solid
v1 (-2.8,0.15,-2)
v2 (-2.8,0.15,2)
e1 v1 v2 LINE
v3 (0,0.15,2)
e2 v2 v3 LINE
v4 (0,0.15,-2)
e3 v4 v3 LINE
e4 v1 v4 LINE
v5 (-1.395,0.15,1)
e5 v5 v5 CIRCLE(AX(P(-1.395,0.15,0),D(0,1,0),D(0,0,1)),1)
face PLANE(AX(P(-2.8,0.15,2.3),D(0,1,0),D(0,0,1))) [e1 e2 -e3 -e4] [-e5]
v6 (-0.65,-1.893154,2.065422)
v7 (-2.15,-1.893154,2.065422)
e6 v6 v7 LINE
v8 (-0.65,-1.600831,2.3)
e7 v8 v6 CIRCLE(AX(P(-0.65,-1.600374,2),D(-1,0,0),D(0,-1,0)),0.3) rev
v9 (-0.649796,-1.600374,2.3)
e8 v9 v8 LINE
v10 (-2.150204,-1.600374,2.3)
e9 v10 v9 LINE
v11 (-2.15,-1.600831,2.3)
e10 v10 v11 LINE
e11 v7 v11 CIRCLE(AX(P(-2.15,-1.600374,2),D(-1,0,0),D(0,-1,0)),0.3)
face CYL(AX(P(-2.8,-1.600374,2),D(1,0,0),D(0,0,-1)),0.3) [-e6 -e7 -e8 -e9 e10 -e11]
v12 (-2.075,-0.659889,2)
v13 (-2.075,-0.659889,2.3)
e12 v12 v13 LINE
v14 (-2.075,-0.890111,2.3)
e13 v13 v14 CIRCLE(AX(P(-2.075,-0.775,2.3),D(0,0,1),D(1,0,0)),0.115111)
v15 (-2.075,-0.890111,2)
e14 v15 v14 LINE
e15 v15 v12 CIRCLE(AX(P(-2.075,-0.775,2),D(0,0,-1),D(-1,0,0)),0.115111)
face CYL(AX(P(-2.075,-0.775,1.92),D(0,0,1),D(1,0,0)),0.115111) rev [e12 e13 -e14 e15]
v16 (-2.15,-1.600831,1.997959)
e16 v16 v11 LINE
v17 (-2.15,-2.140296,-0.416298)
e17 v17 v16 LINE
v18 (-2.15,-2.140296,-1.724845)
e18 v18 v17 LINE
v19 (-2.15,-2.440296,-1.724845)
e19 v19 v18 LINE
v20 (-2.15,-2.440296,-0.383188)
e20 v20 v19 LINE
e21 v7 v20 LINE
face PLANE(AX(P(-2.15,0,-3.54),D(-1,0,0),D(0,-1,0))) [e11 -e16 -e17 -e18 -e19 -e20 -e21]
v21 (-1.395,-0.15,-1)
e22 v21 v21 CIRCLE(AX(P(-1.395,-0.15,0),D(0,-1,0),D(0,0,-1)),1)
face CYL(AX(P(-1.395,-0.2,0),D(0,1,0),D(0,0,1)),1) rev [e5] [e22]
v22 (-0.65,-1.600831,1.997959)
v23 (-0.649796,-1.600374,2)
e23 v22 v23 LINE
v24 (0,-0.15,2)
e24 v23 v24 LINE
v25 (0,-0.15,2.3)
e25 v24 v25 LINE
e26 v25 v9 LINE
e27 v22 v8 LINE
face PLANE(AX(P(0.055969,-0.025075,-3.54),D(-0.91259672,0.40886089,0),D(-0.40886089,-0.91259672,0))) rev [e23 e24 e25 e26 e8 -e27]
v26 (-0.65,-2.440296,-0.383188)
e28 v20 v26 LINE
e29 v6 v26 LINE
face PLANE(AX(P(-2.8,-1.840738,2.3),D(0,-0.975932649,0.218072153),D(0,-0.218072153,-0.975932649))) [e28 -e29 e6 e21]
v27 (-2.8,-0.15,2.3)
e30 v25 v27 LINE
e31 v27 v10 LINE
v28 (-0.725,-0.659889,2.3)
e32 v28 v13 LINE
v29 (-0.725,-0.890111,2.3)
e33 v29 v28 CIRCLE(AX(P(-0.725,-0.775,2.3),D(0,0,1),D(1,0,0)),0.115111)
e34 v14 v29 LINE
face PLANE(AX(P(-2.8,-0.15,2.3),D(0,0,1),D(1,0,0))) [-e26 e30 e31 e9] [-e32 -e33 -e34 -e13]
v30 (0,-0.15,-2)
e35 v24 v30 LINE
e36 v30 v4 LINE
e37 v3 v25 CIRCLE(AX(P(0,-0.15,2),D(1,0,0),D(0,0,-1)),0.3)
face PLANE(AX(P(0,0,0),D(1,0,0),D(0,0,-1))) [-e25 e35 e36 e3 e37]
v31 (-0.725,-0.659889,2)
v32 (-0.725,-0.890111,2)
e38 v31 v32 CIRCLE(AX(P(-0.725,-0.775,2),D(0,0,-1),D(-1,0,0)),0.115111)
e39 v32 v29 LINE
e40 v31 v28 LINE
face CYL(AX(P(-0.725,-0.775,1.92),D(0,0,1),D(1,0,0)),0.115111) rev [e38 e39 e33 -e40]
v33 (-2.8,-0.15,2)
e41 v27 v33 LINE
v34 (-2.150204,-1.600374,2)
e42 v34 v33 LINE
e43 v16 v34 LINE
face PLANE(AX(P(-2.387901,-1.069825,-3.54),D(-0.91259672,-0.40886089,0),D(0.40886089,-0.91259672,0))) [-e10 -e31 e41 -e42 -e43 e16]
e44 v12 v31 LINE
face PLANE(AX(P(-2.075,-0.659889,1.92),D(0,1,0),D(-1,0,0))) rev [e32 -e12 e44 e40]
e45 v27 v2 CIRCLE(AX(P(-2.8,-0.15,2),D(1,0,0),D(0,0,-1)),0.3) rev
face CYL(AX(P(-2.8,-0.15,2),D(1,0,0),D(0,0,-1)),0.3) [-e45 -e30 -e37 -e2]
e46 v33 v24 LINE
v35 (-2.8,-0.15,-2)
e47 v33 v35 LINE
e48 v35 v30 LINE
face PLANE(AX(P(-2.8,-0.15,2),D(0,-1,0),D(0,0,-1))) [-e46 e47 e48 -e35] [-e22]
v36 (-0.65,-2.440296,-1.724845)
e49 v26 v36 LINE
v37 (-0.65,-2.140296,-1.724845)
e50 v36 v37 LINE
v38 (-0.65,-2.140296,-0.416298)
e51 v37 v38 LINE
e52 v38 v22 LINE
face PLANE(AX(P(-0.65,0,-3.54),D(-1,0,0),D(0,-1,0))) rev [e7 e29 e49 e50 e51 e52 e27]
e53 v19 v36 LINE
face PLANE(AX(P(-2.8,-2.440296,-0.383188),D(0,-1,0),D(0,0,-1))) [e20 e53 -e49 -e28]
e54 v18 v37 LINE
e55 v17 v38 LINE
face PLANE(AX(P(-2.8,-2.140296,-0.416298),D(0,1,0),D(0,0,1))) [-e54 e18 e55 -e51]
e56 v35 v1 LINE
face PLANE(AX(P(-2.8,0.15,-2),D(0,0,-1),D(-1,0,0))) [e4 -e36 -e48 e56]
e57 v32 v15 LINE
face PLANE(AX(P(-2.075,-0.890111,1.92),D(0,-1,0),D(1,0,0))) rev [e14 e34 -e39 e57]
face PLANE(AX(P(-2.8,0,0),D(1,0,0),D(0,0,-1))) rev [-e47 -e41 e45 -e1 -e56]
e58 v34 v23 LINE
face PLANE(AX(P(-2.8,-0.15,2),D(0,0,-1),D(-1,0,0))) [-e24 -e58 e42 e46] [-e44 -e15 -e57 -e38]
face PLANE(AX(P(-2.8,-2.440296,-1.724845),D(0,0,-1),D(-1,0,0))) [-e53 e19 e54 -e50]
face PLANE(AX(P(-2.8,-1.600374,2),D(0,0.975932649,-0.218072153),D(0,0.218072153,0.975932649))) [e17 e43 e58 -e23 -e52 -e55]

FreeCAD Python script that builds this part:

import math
import FreeCAD as App
import Part
import Sketcher
Q = App.Units.Quantity


def edges_at(feature, points):
    """Names of the edges that pass closest to the given points."""
    edges = feature.Shape.Edges
    near = lambda p: min(range(len(edges)), key=lambda i: edges[i].distToShape(Part.Vertex(*p))[0])
    return sorted({f"Edge{near(p) + 1}" for p in points})

doc = App.newDocument("Part")
body = doc.addObject("PartDesign::Body", "Body")

# Sketch on YZ plane
sketch1 = doc.addObject("Sketcher::SketchObject", "Sketch")
body.addObject(sketch1)
sketch1.AttachmentSupport = (doc.YZ_Plane, [""])
sketch1.MapMode = "FlatFace"
sketch1.addGeometry([
    Part.LineSegment(App.Vector(-0.15, 2, 0), App.Vector(-0.15, -2, 0)),  # 0
    Part.LineSegment(App.Vector(-0.15, -2, 0), App.Vector(0.15, -2, 0)),  # 1
    Part.LineSegment(App.Vector(0.15, -2, 0), App.Vector(0.15, 2.3, 0)),  # 2
    Part.LineSegment(App.Vector(0.15, 2.3, 0), App.Vector(-1.84, 2.3, 0)),  # 3
    Part.LineSegment(App.Vector(-1.84, 2.3, 0), App.Vector(-2.44, -0.38, 0)),  # 4
    Part.LineSegment(App.Vector(-2.44, -0.38, 0), App.Vector(-2.44, -1.72, 0)),  # 5
    Part.LineSegment(App.Vector(-2.44, -1.72, 0), App.Vector(-2.14, -1.72, 0)),  # 6
    Part.LineSegment(App.Vector(-2.14, -1.72, 0), App.Vector(-2.14, -0.42, 0)),  # 7
    Part.LineSegment(App.Vector(-2.14, -0.42, 0), App.Vector(-1.6, 2, 0)),  # 8
    Part.LineSegment(App.Vector(-1.6, 2, 0), App.Vector(-0.15, 2, 0)),  # 9
], False)
sketch1.addConstraint([
    Sketcher.Constraint("Coincident", 0, 2, 1, 1),
    Sketcher.Constraint("Coincident", 1, 2, 2, 1),
    Sketcher.Constraint("Coincident", 2, 2, 3, 1),
    Sketcher.Constraint("Coincident", 3, 2, 4, 1),
    Sketcher.Constraint("Coincident", 4, 2, 5, 1),
    Sketcher.Constraint("Coincident", 5, 2, 6, 1),
    Sketcher.Constraint("Coincident", 6, 2, 7, 1),
    Sketcher.Constraint("Coincident", 7, 2, 8, 1),
    Sketcher.Constraint("Coincident", 8, 2, 9, 1),
    Sketcher.Constraint("Coincident", 9, 2, 0, 1),
    Sketcher.Constraint("Vertical", 0),
    Sketcher.Constraint("Horizontal", 1),
    Sketcher.Constraint("Vertical", 2),
    Sketcher.Constraint("Horizontal", 3),
    Sketcher.Constraint("Vertical", 5),
    Sketcher.Constraint("Horizontal", 6),
    Sketcher.Constraint("Vertical", 7),
    Sketcher.Constraint("Horizontal", 9),
    Sketcher.Constraint("Symmetric", 1, 2, 9, 2, -1, 1),
    Sketcher.Constraint("Parallel", 4, 8),
    Sketcher.Constraint("Equal", 1, 6),
    Sketcher.Constraint("DistanceY", 0, 2, 0, 1, Q("4 mm")),
    Sketcher.Constraint("DistanceX", 1, 1, 1, 2, Q("0.3 mm")),
    Sketcher.Constraint("DistanceY", 2, 1, 2, 2, Q("4.3 mm")),
    Sketcher.Constraint("Distance", 4, Q("2.749358 mm")),
    Sketcher.Constraint("DistanceX", 3, 2, 3, 1, Q("1.990738 mm")),
    Sketcher.Constraint("DistanceX", 9, 1, 9, 2, Q("1.450374 mm")),
    Sketcher.Constraint("DistanceY", 5, 2, 5, 1, Q("1.341657 mm")),
    Sketcher.Constraint("DistanceY", 7, 1, 7, 2, Q("1.308547 mm")),
])
pad1 = doc.addObject("PartDesign::Pad", "Pad")
body.addObject(pad1)
pad1.Profile = sketch1
pad1.Length = 2.8
pad1.Reversed = True

# Sketch on XZ plane
sketch2 = doc.addObject("Sketcher::SketchObject", "Sketch001")
body.addObject(sketch2)
sketch2.AttachmentSupport = (doc.XZ_Plane, [""])
sketch2.MapMode = "FlatFace"
sketch2.AttachmentOffset = App.Placement(App.Vector(0, 0, -0.15), App.Rotation())
sketch2.addGeometry(Part.Circle(App.Vector(-1.4, 0, 0), App.Vector(0, 0, 1), 1), False)
sketch2.addConstraint([
    Sketcher.Constraint("PointOnObject", 0, 3, -1),
    Sketcher.Constraint("Diameter", 0, Q("2 mm")),
    Sketcher.Constraint("DistanceX", 0, 3, -1, 1, Q("1.395 mm")),
])
pocket1 = doc.addObject("PartDesign::Pocket", "Pocket")
body.addObject(pocket1)
pocket1.Profile = sketch2
pocket1.Length = 0.35
pocket1.Reversed = True

# Sketch on XY plane
sketch3 = doc.addObject("Sketcher::SketchObject", "Sketch002")
body.addObject(sketch3)
sketch3.AttachmentSupport = (doc.XY_Plane, [""])
sketch3.MapMode = "FlatFace"
sketch3.AttachmentOffset = App.Placement(App.Vector(0, 0, 2.3), App.Rotation())
sketch3.addGeometry([
    Part.LineSegment(App.Vector(0.1, -0.15, 0), App.Vector(0, -0.15, 0)),  # 0
    Part.LineSegment(App.Vector(0, -0.15, 0), App.Vector(-0.65, -1.6, 0)),  # 1
    Part.LineSegment(App.Vector(-0.65, -1.6, 0), App.Vector(-0.65, -2.58, 0)),  # 2
    Part.LineSegment(App.Vector(-0.65, -2.58, 0), App.Vector(-2.15, -2.58, 0)),  # 3
    Part.LineSegment(App.Vector(-2.15, -2.58, 0), App.Vector(-2.15, -1.6, 0)),  # 4
    Part.LineSegment(App.Vector(-2.15, -1.6, 0), App.Vector(-2.8, -0.15, 0)),  # 5
    Part.LineSegment(App.Vector(-2.8, -0.15, 0), App.Vector(-2.94, -0.15, 0)),  # 6
    Part.LineSegment(App.Vector(-2.94, -0.15, 0), App.Vector(-2.94, -2.98, 0)),  # 7
    Part.LineSegment(App.Vector(-2.94, -2.98, 0), App.Vector(0.1, -2.98, 0)),  # 8
    Part.LineSegment(App.Vector(0.1, -2.98, 0), App.Vector(0.1, -0.15, 0)),  # 9
], False)
sketch3.addConstraint([
    Sketcher.Constraint("Coincident", 0, 2, 1, 1),
    Sketcher.Constraint("Coincident", 1, 2, 2, 1),
    Sketcher.Constraint("Coincident", 2, 2, 3, 1),
    Sketcher.Constraint("Coincident", 3, 2, 4, 1),
    Sketcher.Constraint("Coincident", 4, 2, 5, 1),
    Sketcher.Constraint("Coincident", 5, 2, 6, 1),
    Sketcher.Constraint("Coincident", 6, 2, 7, 1),
    Sketcher.Constraint("Coincident", 7, 2, 8, 1),
    Sketcher.Constraint("Coincident", 8, 2, 9, 1),
    Sketcher.Constraint("Coincident", 9, 2, 0, 1),
    Sketcher.Constraint("Horizontal", 0),
    Sketcher.Constraint("Vertical", 2),
    Sketcher.Constraint("Horizontal", 3),
    Sketcher.Constraint("Vertical", 4),
    Sketcher.Constraint("Horizontal", 6),
    Sketcher.Constraint("Vertical", 7),
    Sketcher.Constraint("Horizontal", 8),
    Sketcher.Constraint("Vertical", 9),
    Sketcher.Constraint("PointOnObject", 0, 2, -2),
    Sketcher.Constraint("Horizontal", 1, 2, 4, 2),
    Sketcher.Constraint("Horizontal", 0, 2, 5, 2),
    Sketcher.Constraint("Equal", 1, 5),
    Sketcher.Constraint("DistanceX", 3, 2, 3, 1, Q("1.5 mm")),
    Sketcher.Constraint("DistanceX", 5, 2, -1, 1, Q("2.8 mm")),
    Sketcher.Constraint("DistanceY", 0, 2, -1, 1, Q("0.15 mm")),
    Sketcher.Constraint("DistanceX", 0, 2, 0, 1, Q("0.10458 mm")),
    Sketcher.Constraint("DistanceX", 6, 2, 6, 1, Q("0.142884 mm")),
    Sketcher.Constraint("DistanceY", 2, 2, 2, 1, Q("0.981398 mm")),
    Sketcher.Constraint("DistanceY", 7, 2, 7, 1, Q("2.829665 mm")),
    Sketcher.Constraint("DistanceY", 1, 2, -1, 1, Q("1.600831 mm")),
])
pocket2 = doc.addObject("PartDesign::Pocket", "Pocket001")
body.addObject(pocket2)
pocket2.Profile = sketch3
pocket2.Length = 5.84
doc.recompute()

fillet = doc.addObject("PartDesign::Fillet", "Fillet")
body.addObject(fillet)
fillet.Base = (pocket2, edges_at(pocket2, [(-1.4, 0.15, 2.3)]))
fillet.Radius = 0.3
doc.recompute()

fillet2 = doc.addObject("PartDesign::Fillet", "Fillet001")
body.addObject(fillet2)
fillet2.Base = (fillet, edges_at(fillet, [(-1.4, -1.841, 2.3)]))
fillet2.Radius = 0.3

# Sketch on XY plane
sketch4 = doc.addObject("Sketcher::SketchObject", "Sketch003")
body.addObject(sketch4)
sketch4.AttachmentSupport = (doc.XY_Plane, [""])
sketch4.MapMode = "FlatFace"
sketch4.AttachmentOffset = App.Placement(App.Vector(0, 0, 2.3), App.Rotation())
sketch4.addGeometry([
    Part.LineSegment(App.Vector(-0.72, -0.66, 0), App.Vector(-2.08, -0.66, 0)),
    Part.ArcOfCircle(Part.Circle(App.Vector(-2.08, -0.78, 0), App.Vector(0, 0, 1), 0.12), math.radians(90), math.radians(270)),
    Part.LineSegment(App.Vector(-2.08, -0.89, 0), App.Vector(-0.72, -0.89, 0)),
    Part.ArcOfCircle(Part.Circle(App.Vector(-0.72, -0.78, 0), App.Vector(0, 0, 1), 0.12), math.radians(-90), math.radians(90)),
], False)
sketch4.addConstraint([
    Sketcher.Constraint("Tangent", 0, 2, 1, 1),
    Sketcher.Constraint("Tangent", 1, 2, 2, 1),
    Sketcher.Constraint("Tangent", 2, 2, 3, 1),
    Sketcher.Constraint("Tangent", 3, 2, 0, 1),
    Sketcher.Constraint("Horizontal", 0),
    Sketcher.Constraint("Horizontal", 2),
    Sketcher.Constraint("DistanceX", 0, 2, 0, 1, Q("1.35 mm")),
    Sketcher.Constraint("Radius", 1, Q("0.115111 mm")),
    Sketcher.Constraint("DistanceX", 1, 3, -1, 1, Q("2.075 mm")),
    Sketcher.Constraint("DistanceY", 1, 3, -1, 1, Q("0.775 mm")),
])
pocket3 = doc.addObject("PartDesign::Pocket", "Pocket002")
body.addObject(pocket3)
pocket3.Profile = sketch4
pocket3.Length = 0.38

doc.recompute()
